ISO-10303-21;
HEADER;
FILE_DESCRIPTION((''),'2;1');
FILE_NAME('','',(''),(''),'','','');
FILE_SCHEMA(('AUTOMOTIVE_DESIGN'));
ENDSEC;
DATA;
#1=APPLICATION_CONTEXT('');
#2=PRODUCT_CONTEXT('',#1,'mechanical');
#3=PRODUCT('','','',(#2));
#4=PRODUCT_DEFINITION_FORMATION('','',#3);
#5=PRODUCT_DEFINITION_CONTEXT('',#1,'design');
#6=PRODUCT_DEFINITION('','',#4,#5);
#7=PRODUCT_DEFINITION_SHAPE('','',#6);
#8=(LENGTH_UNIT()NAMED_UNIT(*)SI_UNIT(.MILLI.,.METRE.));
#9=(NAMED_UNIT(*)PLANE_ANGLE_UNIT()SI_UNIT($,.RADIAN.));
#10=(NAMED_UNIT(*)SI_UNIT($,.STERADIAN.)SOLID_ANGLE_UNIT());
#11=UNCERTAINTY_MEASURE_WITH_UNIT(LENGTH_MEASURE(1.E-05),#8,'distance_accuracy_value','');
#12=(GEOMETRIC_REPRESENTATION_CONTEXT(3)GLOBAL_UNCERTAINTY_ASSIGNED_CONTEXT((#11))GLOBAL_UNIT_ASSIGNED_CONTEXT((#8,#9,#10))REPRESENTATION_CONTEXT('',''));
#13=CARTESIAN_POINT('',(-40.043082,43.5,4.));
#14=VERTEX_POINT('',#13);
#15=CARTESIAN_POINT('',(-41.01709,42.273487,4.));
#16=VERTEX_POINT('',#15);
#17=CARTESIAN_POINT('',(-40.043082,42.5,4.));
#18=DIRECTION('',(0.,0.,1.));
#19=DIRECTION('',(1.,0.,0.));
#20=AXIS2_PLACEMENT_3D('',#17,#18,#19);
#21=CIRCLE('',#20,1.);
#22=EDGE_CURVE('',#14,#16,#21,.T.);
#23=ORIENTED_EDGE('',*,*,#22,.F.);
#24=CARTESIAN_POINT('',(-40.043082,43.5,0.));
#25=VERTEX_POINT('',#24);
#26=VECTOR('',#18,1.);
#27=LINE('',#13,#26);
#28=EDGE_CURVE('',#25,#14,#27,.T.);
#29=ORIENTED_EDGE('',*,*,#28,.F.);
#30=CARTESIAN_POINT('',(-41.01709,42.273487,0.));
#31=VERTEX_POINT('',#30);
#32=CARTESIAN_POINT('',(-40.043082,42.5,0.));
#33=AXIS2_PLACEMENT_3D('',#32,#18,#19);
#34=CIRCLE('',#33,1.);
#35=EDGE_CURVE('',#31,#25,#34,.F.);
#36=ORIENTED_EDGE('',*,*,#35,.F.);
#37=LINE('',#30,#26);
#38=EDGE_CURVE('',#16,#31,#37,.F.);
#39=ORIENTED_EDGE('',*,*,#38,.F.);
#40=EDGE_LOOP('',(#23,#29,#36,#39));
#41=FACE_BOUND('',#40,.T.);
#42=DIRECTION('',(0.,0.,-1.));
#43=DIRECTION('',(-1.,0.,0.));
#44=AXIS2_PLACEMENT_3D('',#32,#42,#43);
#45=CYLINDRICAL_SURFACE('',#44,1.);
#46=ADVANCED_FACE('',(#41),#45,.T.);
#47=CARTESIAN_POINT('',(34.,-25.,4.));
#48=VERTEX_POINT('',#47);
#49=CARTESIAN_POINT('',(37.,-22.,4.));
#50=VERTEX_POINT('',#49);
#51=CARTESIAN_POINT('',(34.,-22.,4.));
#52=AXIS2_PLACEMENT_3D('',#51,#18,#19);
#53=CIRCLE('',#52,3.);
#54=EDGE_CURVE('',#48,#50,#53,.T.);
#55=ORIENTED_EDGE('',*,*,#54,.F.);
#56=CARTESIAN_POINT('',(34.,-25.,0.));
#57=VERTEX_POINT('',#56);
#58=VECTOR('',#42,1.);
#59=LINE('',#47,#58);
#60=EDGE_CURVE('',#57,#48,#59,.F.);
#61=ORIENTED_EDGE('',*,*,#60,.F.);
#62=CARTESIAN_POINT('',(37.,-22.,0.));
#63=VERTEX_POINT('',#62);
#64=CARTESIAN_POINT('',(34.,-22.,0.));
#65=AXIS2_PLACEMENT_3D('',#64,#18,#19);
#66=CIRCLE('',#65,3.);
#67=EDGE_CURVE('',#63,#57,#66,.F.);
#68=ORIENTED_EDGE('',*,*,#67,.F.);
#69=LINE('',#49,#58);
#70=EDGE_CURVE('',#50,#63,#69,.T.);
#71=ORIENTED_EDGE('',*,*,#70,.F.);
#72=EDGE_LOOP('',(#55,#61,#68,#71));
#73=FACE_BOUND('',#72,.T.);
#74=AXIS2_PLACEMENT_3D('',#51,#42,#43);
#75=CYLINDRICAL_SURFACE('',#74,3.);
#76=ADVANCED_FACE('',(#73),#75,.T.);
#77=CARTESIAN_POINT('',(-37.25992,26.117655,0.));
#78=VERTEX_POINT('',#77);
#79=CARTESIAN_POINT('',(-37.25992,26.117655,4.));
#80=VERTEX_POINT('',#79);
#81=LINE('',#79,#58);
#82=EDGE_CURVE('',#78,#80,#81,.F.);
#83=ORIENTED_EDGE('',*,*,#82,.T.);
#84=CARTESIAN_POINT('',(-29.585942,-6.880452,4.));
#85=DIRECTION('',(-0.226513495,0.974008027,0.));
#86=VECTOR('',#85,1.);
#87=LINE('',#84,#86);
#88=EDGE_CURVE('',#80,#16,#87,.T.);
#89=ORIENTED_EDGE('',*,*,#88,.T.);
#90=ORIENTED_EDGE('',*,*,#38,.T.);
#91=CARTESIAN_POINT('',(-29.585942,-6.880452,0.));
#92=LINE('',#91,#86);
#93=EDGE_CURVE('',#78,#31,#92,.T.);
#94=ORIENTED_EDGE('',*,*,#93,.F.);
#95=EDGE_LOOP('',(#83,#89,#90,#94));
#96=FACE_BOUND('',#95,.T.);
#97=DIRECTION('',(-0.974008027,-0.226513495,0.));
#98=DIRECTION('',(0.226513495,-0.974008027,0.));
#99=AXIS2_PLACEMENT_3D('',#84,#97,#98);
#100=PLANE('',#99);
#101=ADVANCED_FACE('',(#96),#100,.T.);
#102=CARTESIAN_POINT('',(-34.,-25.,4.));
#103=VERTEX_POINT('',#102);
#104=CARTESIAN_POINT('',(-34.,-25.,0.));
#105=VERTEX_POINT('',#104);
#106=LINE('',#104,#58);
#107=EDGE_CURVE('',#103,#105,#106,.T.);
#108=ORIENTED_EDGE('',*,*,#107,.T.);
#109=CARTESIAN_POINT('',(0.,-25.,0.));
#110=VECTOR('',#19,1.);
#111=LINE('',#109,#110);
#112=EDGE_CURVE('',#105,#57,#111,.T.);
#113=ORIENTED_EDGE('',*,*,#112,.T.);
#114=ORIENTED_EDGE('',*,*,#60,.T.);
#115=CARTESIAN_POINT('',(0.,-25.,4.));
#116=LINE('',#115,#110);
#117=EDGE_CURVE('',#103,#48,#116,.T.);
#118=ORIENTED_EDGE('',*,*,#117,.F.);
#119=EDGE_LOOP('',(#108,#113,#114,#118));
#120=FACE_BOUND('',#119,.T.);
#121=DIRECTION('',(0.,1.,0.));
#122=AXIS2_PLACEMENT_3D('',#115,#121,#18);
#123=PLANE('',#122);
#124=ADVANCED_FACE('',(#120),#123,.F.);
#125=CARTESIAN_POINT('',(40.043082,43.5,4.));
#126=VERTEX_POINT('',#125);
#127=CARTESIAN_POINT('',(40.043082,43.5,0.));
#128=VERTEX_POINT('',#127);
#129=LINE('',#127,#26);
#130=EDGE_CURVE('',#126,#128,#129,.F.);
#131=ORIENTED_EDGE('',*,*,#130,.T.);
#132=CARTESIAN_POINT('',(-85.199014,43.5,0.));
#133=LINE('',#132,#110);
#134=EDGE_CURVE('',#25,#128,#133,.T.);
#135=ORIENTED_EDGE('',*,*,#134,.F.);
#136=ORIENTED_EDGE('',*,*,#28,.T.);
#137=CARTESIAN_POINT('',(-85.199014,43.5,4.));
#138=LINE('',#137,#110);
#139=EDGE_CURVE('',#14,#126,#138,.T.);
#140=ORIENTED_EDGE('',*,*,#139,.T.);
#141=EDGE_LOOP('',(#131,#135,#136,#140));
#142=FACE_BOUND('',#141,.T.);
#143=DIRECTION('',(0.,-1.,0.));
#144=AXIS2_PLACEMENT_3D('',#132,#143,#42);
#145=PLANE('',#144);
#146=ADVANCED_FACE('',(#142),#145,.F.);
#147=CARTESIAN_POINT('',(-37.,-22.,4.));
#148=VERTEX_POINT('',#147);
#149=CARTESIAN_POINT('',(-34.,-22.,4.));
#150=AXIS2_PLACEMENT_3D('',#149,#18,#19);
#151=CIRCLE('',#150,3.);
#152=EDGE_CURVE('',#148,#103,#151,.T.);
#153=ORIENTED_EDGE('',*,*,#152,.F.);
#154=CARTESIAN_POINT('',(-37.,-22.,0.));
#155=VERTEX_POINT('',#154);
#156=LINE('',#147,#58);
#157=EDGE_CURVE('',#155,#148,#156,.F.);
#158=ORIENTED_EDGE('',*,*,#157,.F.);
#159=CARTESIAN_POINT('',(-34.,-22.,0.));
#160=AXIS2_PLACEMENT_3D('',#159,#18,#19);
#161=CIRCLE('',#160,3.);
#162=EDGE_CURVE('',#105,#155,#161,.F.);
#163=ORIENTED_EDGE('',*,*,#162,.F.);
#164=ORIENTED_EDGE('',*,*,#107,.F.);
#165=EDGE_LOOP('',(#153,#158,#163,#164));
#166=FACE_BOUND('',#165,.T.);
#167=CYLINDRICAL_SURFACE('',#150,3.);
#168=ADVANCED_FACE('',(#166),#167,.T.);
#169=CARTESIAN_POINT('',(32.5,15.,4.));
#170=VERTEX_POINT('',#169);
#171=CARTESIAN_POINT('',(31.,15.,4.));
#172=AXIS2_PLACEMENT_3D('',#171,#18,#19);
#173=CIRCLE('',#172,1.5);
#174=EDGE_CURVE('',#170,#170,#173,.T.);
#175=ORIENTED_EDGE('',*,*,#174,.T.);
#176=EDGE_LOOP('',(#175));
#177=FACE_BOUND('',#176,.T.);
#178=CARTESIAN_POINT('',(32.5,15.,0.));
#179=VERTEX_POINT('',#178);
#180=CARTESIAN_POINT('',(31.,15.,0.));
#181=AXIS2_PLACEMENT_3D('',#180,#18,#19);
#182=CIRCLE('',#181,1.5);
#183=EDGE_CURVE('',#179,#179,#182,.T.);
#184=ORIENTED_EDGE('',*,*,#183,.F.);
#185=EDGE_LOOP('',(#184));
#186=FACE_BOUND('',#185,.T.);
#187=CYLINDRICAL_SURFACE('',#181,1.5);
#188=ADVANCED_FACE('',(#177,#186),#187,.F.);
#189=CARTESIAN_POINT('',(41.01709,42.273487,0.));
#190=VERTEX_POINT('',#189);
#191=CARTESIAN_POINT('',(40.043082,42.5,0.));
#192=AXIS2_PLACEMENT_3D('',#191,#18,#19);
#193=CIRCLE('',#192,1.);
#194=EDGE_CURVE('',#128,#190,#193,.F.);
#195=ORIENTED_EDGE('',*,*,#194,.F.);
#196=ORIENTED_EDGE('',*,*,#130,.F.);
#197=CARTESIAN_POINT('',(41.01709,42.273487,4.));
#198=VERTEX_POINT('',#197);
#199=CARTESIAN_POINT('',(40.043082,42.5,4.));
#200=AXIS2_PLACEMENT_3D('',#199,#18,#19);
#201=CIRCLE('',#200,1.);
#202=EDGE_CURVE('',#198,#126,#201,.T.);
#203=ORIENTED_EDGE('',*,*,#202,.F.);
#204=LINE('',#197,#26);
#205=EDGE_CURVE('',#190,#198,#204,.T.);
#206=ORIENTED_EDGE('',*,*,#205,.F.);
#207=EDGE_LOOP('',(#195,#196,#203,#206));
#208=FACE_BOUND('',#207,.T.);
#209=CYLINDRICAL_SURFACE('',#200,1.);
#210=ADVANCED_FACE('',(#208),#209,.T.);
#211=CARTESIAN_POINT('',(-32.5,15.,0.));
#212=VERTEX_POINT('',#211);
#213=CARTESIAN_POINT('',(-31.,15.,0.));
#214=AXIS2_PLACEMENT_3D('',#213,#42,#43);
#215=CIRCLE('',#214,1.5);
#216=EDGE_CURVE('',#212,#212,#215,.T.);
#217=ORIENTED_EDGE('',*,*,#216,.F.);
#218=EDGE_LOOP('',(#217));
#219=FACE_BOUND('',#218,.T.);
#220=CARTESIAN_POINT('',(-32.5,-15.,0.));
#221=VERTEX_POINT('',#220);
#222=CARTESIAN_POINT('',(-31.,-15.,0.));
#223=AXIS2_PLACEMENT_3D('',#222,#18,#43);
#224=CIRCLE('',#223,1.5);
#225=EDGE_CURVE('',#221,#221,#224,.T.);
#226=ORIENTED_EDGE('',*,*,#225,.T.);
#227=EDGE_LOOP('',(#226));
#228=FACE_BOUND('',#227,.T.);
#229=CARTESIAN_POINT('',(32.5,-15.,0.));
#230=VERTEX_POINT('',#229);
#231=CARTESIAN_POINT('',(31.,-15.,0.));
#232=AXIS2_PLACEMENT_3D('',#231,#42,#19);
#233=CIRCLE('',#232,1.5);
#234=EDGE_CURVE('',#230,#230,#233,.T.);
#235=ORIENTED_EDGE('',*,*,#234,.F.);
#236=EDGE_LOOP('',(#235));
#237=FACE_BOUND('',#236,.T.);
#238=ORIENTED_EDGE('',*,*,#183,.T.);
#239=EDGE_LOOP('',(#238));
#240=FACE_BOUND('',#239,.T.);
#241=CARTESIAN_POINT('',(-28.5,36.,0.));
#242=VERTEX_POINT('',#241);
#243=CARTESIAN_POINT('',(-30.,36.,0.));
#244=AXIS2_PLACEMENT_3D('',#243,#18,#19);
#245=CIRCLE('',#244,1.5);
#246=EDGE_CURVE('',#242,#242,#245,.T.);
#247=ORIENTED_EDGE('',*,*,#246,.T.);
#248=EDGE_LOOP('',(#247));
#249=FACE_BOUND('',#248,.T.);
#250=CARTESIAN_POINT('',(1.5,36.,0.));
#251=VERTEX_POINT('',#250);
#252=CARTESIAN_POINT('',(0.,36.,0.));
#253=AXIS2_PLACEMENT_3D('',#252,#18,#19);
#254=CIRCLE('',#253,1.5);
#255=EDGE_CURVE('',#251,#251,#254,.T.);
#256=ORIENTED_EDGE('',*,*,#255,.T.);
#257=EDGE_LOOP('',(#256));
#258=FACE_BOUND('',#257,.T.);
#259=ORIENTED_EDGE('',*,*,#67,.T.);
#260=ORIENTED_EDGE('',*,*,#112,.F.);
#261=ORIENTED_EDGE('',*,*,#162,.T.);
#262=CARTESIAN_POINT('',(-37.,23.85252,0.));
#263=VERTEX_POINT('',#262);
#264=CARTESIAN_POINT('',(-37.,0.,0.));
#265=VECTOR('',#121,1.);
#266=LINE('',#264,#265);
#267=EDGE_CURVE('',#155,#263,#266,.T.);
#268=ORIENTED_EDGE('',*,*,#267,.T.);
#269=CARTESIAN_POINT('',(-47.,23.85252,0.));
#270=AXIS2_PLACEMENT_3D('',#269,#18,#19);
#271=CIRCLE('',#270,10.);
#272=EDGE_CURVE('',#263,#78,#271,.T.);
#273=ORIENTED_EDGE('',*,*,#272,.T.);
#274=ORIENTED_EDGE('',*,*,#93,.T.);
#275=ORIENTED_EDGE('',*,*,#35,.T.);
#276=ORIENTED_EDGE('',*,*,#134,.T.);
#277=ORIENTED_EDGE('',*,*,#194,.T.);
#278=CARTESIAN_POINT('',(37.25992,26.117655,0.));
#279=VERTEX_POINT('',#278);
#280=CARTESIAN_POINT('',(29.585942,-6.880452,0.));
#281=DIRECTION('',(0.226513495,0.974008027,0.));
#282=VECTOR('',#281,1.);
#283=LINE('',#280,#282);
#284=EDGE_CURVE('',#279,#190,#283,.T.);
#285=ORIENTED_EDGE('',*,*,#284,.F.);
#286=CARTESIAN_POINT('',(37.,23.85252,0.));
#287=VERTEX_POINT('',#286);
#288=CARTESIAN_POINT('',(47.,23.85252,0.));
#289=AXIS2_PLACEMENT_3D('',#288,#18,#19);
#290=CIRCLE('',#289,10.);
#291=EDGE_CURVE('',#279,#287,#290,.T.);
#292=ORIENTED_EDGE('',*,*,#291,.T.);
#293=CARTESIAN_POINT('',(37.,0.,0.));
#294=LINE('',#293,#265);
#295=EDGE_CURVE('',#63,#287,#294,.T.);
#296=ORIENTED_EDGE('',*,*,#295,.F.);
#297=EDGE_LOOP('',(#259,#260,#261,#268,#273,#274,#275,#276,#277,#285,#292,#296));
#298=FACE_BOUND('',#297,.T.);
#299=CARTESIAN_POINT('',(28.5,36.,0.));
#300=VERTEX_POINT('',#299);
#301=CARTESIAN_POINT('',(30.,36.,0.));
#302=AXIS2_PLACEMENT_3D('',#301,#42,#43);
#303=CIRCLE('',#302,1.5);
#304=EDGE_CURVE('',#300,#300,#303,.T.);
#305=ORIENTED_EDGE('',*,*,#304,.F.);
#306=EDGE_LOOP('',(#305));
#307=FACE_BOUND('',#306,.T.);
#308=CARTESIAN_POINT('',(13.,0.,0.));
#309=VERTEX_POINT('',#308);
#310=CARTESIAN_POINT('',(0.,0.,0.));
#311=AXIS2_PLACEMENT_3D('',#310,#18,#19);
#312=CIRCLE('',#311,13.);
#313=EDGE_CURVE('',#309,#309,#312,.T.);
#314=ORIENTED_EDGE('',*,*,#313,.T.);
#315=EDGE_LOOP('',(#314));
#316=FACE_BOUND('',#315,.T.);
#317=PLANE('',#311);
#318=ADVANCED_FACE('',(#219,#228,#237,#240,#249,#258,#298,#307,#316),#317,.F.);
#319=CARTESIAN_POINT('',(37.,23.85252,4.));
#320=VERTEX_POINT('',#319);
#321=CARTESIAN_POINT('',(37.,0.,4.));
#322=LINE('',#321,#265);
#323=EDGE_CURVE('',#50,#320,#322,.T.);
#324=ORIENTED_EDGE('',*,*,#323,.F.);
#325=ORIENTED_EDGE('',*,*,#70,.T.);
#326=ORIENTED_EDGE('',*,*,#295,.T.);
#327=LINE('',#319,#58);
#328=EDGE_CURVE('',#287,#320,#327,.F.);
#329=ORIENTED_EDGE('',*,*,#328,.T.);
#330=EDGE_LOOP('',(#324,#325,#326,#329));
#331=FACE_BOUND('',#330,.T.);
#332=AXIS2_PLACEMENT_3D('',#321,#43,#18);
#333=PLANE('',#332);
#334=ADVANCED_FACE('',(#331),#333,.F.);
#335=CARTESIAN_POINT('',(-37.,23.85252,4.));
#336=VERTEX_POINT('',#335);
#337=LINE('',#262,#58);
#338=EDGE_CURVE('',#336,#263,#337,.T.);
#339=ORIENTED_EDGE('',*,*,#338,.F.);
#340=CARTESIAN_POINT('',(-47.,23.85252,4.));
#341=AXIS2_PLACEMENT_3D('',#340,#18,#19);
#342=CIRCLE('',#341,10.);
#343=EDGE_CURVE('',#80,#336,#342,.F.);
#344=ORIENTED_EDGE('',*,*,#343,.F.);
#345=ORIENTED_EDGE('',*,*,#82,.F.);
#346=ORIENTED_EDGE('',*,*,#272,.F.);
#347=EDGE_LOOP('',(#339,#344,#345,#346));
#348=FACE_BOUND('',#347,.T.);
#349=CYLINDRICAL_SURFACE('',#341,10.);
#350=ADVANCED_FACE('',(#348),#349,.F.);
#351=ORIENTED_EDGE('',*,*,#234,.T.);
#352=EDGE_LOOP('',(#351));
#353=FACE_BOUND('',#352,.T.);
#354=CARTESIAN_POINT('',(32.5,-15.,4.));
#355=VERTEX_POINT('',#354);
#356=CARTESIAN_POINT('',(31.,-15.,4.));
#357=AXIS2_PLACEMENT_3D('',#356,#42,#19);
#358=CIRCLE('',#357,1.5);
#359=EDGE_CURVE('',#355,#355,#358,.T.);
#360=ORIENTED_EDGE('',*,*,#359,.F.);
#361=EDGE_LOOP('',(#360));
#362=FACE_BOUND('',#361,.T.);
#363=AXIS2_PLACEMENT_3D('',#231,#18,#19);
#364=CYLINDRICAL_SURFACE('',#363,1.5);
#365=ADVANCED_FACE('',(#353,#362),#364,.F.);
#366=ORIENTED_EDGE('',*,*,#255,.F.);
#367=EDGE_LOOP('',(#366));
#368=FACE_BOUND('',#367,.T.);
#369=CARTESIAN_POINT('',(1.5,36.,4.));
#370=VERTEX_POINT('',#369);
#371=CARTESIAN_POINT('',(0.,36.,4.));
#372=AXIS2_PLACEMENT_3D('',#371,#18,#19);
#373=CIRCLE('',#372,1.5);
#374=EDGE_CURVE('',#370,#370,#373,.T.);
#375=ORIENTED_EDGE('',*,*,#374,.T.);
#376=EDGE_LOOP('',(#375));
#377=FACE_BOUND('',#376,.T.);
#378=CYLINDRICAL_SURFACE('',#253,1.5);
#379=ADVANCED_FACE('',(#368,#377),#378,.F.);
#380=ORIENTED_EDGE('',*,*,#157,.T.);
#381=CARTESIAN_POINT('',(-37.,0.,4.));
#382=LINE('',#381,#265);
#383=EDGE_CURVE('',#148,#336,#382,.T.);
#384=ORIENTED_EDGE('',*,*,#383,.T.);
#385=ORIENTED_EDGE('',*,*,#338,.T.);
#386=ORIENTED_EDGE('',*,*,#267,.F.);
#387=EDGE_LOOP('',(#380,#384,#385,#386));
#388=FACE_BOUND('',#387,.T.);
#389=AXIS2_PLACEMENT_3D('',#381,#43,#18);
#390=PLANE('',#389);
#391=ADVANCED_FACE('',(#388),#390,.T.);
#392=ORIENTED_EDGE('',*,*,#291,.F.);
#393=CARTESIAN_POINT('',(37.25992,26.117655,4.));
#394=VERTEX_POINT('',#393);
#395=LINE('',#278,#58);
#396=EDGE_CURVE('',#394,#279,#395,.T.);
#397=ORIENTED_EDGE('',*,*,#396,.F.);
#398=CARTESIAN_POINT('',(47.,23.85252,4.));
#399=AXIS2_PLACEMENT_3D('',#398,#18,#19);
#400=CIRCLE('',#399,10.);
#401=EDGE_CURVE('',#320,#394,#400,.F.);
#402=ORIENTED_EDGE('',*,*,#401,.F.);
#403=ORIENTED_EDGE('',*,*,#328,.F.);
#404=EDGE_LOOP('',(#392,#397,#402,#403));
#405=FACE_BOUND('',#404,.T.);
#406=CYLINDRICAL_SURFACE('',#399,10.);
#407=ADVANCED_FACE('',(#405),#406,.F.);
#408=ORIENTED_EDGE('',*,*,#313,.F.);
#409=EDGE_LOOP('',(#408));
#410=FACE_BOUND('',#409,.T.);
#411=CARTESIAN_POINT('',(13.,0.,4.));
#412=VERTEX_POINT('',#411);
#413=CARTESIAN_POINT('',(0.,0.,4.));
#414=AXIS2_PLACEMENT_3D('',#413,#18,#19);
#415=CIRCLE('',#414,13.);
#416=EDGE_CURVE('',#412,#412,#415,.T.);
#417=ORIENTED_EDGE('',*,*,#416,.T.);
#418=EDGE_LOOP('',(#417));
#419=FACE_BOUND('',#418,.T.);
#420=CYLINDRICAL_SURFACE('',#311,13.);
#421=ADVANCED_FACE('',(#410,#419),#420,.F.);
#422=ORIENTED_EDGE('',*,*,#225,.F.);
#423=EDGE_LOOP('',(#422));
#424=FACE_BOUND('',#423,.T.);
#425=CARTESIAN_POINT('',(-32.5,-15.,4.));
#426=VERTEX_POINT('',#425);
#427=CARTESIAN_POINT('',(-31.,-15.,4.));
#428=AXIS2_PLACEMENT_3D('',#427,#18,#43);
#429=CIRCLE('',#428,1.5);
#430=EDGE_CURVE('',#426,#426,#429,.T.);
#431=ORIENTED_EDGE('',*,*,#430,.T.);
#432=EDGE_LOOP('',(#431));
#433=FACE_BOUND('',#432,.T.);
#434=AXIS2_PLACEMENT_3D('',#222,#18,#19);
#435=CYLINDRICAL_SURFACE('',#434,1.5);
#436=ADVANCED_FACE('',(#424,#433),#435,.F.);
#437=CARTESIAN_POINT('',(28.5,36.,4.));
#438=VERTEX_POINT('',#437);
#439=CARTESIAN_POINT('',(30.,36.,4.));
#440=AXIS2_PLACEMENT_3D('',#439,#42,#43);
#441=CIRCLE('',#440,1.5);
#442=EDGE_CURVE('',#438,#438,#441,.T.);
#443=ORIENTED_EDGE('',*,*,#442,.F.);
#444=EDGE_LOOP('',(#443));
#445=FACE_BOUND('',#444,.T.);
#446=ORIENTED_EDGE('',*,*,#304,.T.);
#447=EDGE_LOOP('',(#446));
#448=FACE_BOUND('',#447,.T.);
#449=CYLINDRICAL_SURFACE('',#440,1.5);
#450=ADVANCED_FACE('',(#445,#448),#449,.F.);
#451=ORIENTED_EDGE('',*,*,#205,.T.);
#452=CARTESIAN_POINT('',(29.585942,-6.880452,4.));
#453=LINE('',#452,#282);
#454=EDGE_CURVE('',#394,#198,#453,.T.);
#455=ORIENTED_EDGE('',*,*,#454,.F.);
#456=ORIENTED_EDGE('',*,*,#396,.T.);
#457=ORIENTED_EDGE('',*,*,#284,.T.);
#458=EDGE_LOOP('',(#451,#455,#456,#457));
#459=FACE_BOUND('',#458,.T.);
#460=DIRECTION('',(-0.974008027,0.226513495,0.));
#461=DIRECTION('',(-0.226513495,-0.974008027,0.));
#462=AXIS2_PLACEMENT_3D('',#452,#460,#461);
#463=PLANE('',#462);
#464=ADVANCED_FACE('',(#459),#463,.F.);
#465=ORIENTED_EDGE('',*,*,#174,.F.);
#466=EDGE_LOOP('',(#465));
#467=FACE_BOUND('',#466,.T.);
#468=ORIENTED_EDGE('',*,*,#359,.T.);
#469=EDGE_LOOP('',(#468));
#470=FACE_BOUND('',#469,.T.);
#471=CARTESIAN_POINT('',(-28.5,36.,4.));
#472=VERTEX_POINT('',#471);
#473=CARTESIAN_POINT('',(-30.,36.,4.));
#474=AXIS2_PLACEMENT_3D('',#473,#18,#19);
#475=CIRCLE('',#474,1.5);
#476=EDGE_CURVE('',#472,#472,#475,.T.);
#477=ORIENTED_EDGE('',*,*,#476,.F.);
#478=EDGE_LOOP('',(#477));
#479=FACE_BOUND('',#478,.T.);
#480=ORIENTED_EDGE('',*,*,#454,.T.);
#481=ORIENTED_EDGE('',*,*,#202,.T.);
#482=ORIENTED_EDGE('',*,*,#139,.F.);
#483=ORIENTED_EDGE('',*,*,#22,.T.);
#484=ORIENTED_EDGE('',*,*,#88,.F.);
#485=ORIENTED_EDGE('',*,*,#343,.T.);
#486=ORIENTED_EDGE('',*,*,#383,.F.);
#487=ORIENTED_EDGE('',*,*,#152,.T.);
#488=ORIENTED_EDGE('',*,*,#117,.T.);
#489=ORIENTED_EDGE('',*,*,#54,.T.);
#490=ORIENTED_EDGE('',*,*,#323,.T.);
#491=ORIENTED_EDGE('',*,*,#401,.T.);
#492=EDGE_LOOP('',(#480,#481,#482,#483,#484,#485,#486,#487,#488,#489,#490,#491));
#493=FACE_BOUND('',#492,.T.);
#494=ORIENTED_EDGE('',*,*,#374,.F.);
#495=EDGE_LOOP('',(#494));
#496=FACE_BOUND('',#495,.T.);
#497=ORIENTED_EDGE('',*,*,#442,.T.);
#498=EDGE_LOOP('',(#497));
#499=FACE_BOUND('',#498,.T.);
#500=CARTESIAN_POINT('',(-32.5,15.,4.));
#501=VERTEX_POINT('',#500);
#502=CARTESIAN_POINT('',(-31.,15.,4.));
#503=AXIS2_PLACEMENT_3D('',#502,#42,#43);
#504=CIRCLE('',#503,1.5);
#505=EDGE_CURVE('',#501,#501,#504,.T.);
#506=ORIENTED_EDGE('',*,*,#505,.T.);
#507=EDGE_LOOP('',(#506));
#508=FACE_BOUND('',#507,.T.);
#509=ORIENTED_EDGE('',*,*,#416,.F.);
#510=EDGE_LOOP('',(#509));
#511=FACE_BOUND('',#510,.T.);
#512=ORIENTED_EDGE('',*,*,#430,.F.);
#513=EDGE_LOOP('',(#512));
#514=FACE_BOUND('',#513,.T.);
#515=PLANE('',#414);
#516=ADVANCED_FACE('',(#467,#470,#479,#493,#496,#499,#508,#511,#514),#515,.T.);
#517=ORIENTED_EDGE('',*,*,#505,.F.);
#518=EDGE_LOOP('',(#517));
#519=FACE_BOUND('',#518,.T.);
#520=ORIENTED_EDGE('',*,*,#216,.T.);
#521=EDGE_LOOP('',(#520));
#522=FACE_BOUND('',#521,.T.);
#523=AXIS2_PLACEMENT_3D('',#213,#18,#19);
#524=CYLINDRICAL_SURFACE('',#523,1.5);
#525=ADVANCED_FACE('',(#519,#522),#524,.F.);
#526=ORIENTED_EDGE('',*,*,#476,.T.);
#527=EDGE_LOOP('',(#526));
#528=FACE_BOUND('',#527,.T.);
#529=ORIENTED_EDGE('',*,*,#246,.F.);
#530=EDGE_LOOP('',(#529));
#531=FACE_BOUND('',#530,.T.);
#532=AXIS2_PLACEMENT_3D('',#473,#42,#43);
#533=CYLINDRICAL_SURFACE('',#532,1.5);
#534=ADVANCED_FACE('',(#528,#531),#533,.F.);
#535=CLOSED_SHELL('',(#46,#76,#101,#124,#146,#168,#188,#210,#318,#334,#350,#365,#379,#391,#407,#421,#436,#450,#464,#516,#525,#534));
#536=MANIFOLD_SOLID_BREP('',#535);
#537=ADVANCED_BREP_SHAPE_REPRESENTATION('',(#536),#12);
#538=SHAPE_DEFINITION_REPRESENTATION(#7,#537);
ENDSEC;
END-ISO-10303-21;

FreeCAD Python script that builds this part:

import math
import FreeCAD as App
import Part
import Sketcher


def edges_at(feature, points):
    """Names of the edges that pass closest to the given points."""
    edges = feature.Shape.Edges
    near = lambda p: min(range(len(edges)), key=lambda i: edges[i].distToShape(Part.Vertex(*p))[0])
    return sorted({f"Edge{near(p) + 1}" for p in points})

doc = App.newDocument("Part")
params = doc.addObject("Spreadsheet::Sheet", "Params")
for row, (alias, value) in enumerate([
    ("sketch1_width", "84 mm"),
    ("sketch1_width2", "74 mm"),
    ("sketch1_height", "50 mm"),
    ("pad1_length", "4 mm"),
    ("sketch2_radius", "1.5 mm"),
    ("sketch3_radius", "1.5 mm"),
    ("sketch4_diameter", "26 mm"),
    ("fillet_radius", "10 mm"),
    ("sketch5_width", "84 mm"),
    ("sketch5_height", "62 mm"),
    ("pad2_length", "4 mm"),
    ("sketch6_width", "18 mm"),
    ("sketch6_height", "44 mm"),
    ("pad3_length", "4 mm"),
    ("sketch7_width", "64 mm"),
    ("sketch7_height", "22 mm"),
    ("sketch8_diameter", "3 mm"),
    ("sketch9_diameter", "3 mm"),
    ("sketch10_diameter", "3 mm"),
    ("fillet2_radius", "3 mm"),
    ("sketch11_width", "20 mm"),
    ("sketch11_height", "18 mm"),
    ("fillet3_radius", "3 mm"),
    ("fillet4_radius", "3 mm"),
    ("fillet5_radius", "3 mm"),
    ("sketch13_diameter", "3 mm"),
    ("fillet6_radius", "1 mm"),
], start=1):
    params.set(f"A{row}", alias)
    params.set(f"B{row}", "=" + value)
    params.setAlias(f"B{row}", alias)

body = doc.addObject("PartDesign::Body", "Body")

# Sketch on XY plane
sketch1 = body.newObject("Sketcher::SketchObject", "Sketch")
sketch1.AttachmentSupport = (doc.getObject("XY_Plane"), [""])
sketch1.MapMode = "FlatFace"
sketch1.addGeometry(Part.LineSegment(App.Vector(37, 25, 0), App.Vector(42, 46.5, 0)), False)
sketch1.addGeometry(Part.LineSegment(App.Vector(42, 46.5, 0), App.Vector(-42, 46.5, 0)), False)
sketch1.addGeometry(Part.LineSegment(App.Vector(-42, 46.5, 0), App.Vector(-37, 25, 0)), False)
sketch1.addGeometry(Part.LineSegment(App.Vector(-37, 25, 0), App.Vector(-37, -25, 0)), False)
sketch1.addGeometry(Part.LineSegment(App.Vector(-37, -25, 0), App.Vector(37, -25, 0)), False)
sketch1.addGeometry(Part.LineSegment(App.Vector(37, -25, 0), App.Vector(37, 25, 0)), False)
sketch1.addConstraint(Sketcher.Constraint("Coincident", 0, 2, 1, 1))
sketch1.addConstraint(Sketcher.Constraint("Coincident", 1, 2, 2, 1))
sketch1.addConstraint(Sketcher.Constraint("Coincident", 2, 2, 3, 1))
sketch1.addConstraint(Sketcher.Constraint("Coincident", 3, 2, 4, 1))
sketch1.addConstraint(Sketcher.Constraint("Coincident", 4, 2, 5, 1))
sketch1.addConstraint(Sketcher.Constraint("Coincident", 5, 2, 0, 1))
sketch1.addConstraint(Sketcher.Constraint("Horizontal", 1))
sketch1.addConstraint(Sketcher.Constraint("Vertical", 3))
sketch1.addConstraint(Sketcher.Constraint("Horizontal", 4))
sketch1.addConstraint(Sketcher.Constraint("Vertical", 5))
sketch1.addConstraint(Sketcher.Constraint("Symmetric", 2, 2, 4, 2, -1, 1))
sketch1.addConstraint(Sketcher.Constraint("Horizontal", 2, 2, 5, 2))
sketch1.addConstraint(Sketcher.Constraint("Equal", 0, 2))
sketch1.addConstraint(Sketcher.Constraint("DistanceX", 1, 2, 1, 1, 84.0))
sketch1.addConstraint(Sketcher.Constraint("DistanceX", 4, 1, 4, 2, 74.0))
sketch1.addConstraint(Sketcher.Constraint("DistanceY", 3, 2, 3, 1, 50.0))
sketch1.addConstraint(Sketcher.Constraint("DistanceY", -1, 1, 0, 2, 46.5))
sketch1.setExpression("Constraints[13]", "Params.sketch1_width")
sketch1.setExpression("Constraints[14]", "Params.sketch1_width2")
sketch1.setExpression("Constraints[15]", "Params.sketch1_height")
pad1 = body.newObject("PartDesign::Pad", "Pad")
pad1.Profile = sketch1
pad1.setExpression("Length", "Params.pad1_length")

# Sketch on XY plane
sketch2 = body.newObject("Sketcher::SketchObject", "Sketch001")
sketch2.AttachmentSupport = (doc.getObject("XY_Plane"), [""])
sketch2.MapMode = "FlatFace"
sketch2.AttachmentOffset = App.Placement(App.Vector(0, 0, 4), App.Rotation())
sketch2.addGeometry(Part.ArcOfCircle(Part.Circle(App.Vector(31, 15, 0), App.Vector(0, 0, 1), 1.5), math.radians(180), math.radians(270)), False)
sketch2.addGeometry(Part.ArcOfCircle(Part.Circle(App.Vector(31, 15, 0), App.Vector(0, 0, 1), 1.5), math.radians(-90), math.radians(0)), False)
sketch2.addGeometry(Part.ArcOfCircle(Part.Circle(App.Vector(31, 15, 0), App.Vector(0, 0, 1), 1.5), math.radians(0), math.radians(180)), False)
sketch2.addConstraint(Sketcher.Constraint("Tangent", 0, 2, 1, 1))
sketch2.addConstraint(Sketcher.Constraint("Tangent", 1, 2, 2, 1))
sketch2.addConstraint(Sketcher.Constraint("Tangent", 2, 2, 0, 1))
sketch2.addConstraint(Sketcher.Constraint("Horizontal", 2, 3, 1, 2))
sketch2.addConstraint(Sketcher.Constraint("Horizontal", 1, 2, 2, 2))
sketch2.addConstraint(Sketcher.Constraint("Vertical", 2, 3, 0, 2))
sketch2.addConstraint(Sketcher.Constraint("Radius", 0, 1.5))
sketch2.addConstraint(Sketcher.Constraint("DistanceX", -1, 1, 0, 3, 31.0))
sketch2.addConstraint(Sketcher.Constraint("DistanceY", -1, 1, 0, 3, 15.0))
sketch2.setExpression("Constraints[6]", "Params.sketch2_radius")
pocket1 = body.newObject("PartDesign::Pocket", "Pocket")
pocket1.Profile = sketch2
pocket1.Type = "ThroughAll"
doc.recompute()

mirrored = body.newObject("PartDesign::Mirrored", "Mirrored")
mirrored.Originals = [pocket1]
mirrored.MirrorPlane = (doc.getObject("XZ_Plane"), [""])
body.Tip = mirrored
doc.recompute()

mirrored2 = body.newObject("PartDesign::Mirrored", "Mirrored001")
mirrored2.Originals = [pocket1]
mirrored2.MirrorPlane = (doc.getObject("YZ_Plane"), [""])
body.Tip = mirrored2

# Sketch on XY plane
sketch3 = body.newObject("Sketcher::SketchObject", "Sketch002")
sketch3.AttachmentSupport = (doc.getObject("XY_Plane"), [""])
sketch3.MapMode = "FlatFace"
sketch3.AttachmentOffset = App.Placement(App.Vector(0, 0, 4), App.Rotation())
sketch3.addGeometry(Part.ArcOfCircle(Part.Circle(App.Vector(-31, -15, 0), App.Vector(0, 0, 1), 1.5), math.radians(0), math.radians(90)), False)
sketch3.addGeometry(Part.ArcOfCircle(Part.Circle(App.Vector(-31, -15, 0), App.Vector(0, 0, 1), 1.5), math.radians(90), math.radians(180)), False)
sketch3.addGeometry(Part.ArcOfCircle(Part.Circle(App.Vector(-31, -15, 0), App.Vector(0, 0, 1), 1.5), math.radians(180), math.radians(360)), False)
sketch3.addConstraint(Sketcher.Constraint("Tangent", 0, 2, 1, 1))
sketch3.addConstraint(Sketcher.Constraint("Tangent", 1, 2, 2, 1))
sketch3.addConstraint(Sketcher.Constraint("Tangent", 2, 2, 0, 1))
sketch3.addConstraint(Sketcher.Constraint("Horizontal", 2, 3, 1, 2))
sketch3.addConstraint(Sketcher.Constraint("Horizontal", 1, 2, 2, 2))
sketch3.addConstraint(Sketcher.Constraint("Vertical", 2, 3, 0, 2))
sketch3.addConstraint(Sketcher.Constraint("Radius", 0, 1.5))
sketch3.addConstraint(Sketcher.Constraint("DistanceX", 0, 3, -1, 1, 31.0))
sketch3.addConstraint(Sketcher.Constraint("DistanceY", 0, 3, -1, 1, 15.0))
sketch3.setExpression("Constraints[6]", "Params.sketch3_radius")
pocket2 = body.newObject("PartDesign::Pocket", "Pocket001")
pocket2.Profile = sketch3
pocket2.Type = "ThroughAll"

# Sketch on XY plane
sketch4 = body.newObject("Sketcher::SketchObject", "Sketch003")
sketch4.AttachmentSupport = (doc.getObject("XY_Plane"), [""])
sketch4.MapMode = "FlatFace"
sketch4.AttachmentOffset = App.Placement(App.Vector(0, 0, 4), App.Rotation())
sketch4.addGeometry(Part.Circle(App.Vector(0, 0, 0), App.Vector(0, 0, 1), 13), False)
sketch4.addConstraint(Sketcher.Constraint("Coincident", 0, 3, -1, 1))
sketch4.addConstraint(Sketcher.Constraint("Diameter", 0, 26.0))
sketch4.setExpression("Constraints[1]", "Params.sketch4_diameter")
pocket3 = body.newObject("PartDesign::Pocket", "Pocket002")
pocket3.Profile = sketch4
pocket3.Type = "ThroughAll"
doc.recompute()

fillet = body.newObject("PartDesign::Fillet", "Fillet")
fillet.Base = (pocket3, edges_at(pocket3, [(37, 25, 2), (-37, 25, 2)]))
fillet.setExpression("Radius", "Params.fillet_radius")

# Sketch on XY plane
sketch5 = body.newObject("Sketcher::SketchObject", "Sketch004")
sketch5.AttachmentSupport = (doc.getObject("XY_Plane"), [""])
sketch5.MapMode = "FlatFace"
sketch5.AttachmentOffset = App.Placement(App.Vector(0, 0, 4), App.Rotation())
sketch5.addGeometry(Part.LineSegment(App.Vector(-42, 108.5, 0), App.Vector(-42, 46.5, 0)), False)
sketch5.addGeometry(Part.LineSegment(App.Vector(-42, 46.5, 0), App.Vector(42, 46.5, 0)), False)
sketch5.addGeometry(Part.LineSegment(App.Vector(42, 46.5, 0), App.Vector(42, 108.5, 0)), False)
sketch5.addGeometry(Part.LineSegment(App.Vector(42, 108.5, 0), App.Vector(-42, 108.5, 0)), False)
sketch5.addConstraint(Sketcher.Constraint("Coincident", 0, 2, 1, 1))
sketch5.addConstraint(Sketcher.Constraint("Coincident", 1, 2, 2, 1))
sketch5.addConstraint(Sketcher.Constraint("Coincident", 2, 2, 3, 1))
sketch5.addConstraint(Sketcher.Constraint("Coincident", 3, 2, 0, 1))
sketch5.addConstraint(Sketcher.Constraint("Vertical", 0))
sketch5.addConstraint(Sketcher.Constraint("Horizontal", 1))
sketch5.addConstraint(Sketcher.Constraint("Vertical", 2))
sketch5.addConstraint(Sketcher.Constraint("Horizontal", 3))
sketch5.addConstraint(Sketcher.Constraint("DistanceX", 1, 1, 1, 2, 84.0))
sketch5.addConstraint(Sketcher.Constraint("DistanceY", 0, 2, 0, 1, 62.0))
sketch5.addConstraint(Sketcher.Constraint("DistanceX", 0, 2, -1, 1, 42.0))
sketch5.addConstraint(Sketcher.Constraint("DistanceY", -1, 1, 0, 2, 46.5))
sketch5.setExpression("Constraints[8]", "Params.sketch5_width")
sketch5.setExpression("Constraints[9]", "Params.sketch5_height")
pad2 = body.newObject("PartDesign::Pad", "Pad001")
pad2.Profile = sketch5
pad2.setExpression("Length", "Params.pad2_length")
pad2.Reversed = True

# Sketch on XY plane
sketch6 = body.newObject("Sketcher::SketchObject", "Sketch005")
sketch6.AttachmentSupport = (doc.getObject("XY_Plane"), [""])
sketch6.MapMode = "FlatFace"
sketch6.AttachmentOffset = App.Placement(App.Vector(0, 0, 4), App.Rotation())
sketch6.addGeometry(Part.LineSegment(App.Vector(-60, 90.5, 0), App.Vector(-60, 46.5, 0)), False)
sketch6.addGeometry(Part.LineSegment(App.Vector(-60, 46.5, 0), App.Vector(-42, 46.5, 0)), False)
sketch6.addGeometry(Part.LineSegment(App.Vector(-42, 46.5, 0), App.Vector(-42, 90.5, 0)), False)
sketch6.addGeometry(Part.LineSegment(App.Vector(-42, 90.5, 0), App.Vector(-60, 90.5, 0)), False)
sketch6.addConstraint(Sketcher.Constraint("Coincident", 0, 2, 1, 1))
sketch6.addConstraint(Sketcher.Constraint("Coincident", 1, 2, 2, 1))
sketch6.addConstraint(Sketcher.Constraint("Coincident", 2, 2, 3, 1))
sketch6.addConstraint(Sketcher.Constraint("Coincident", 3, 2, 0, 1))
sketch6.addConstraint(Sketcher.Constraint("Vertical", 0))
sketch6.addConstraint(Sketcher.Constraint("Horizontal", 1))
sketch6.addConstraint(Sketcher.Constraint("Vertical", 2))
sketch6.addConstraint(Sketcher.Constraint("Horizontal", 3))
sketch6.addConstraint(Sketcher.Constraint("DistanceX", 1, 1, 1, 2, 18.0))
sketch6.addConstraint(Sketcher.Constraint("DistanceY", 0, 2, 0, 1, 44.0))
sketch6.addConstraint(Sketcher.Constraint("DistanceX", 0, 2, -1, 1, 60.0))
sketch6.addConstraint(Sketcher.Constraint("DistanceY", -1, 1, 0, 2, 46.5))
sketch6.setExpression("Constraints[8]", "Params.sketch6_width")
sketch6.setExpression("Constraints[9]", "Params.sketch6_height")
pad3 = body.newObject("PartDesign::Pad", "Pad002")
pad3.Profile = sketch6
pad3.setExpression("Length", "Params.pad3_length")
pad3.Reversed = True
doc.recompute()

mirrored3 = body.newObject("PartDesign::Mirrored", "Mirrored002")
mirrored3.Originals = [pad3]
mirrored3.MirrorPlane = (doc.getObject("YZ_Plane"), [""])
body.Tip = mirrored3

# Sketch on XY plane
sketch7 = body.newObject("Sketcher::SketchObject", "Sketch006")
sketch7.AttachmentSupport = (doc.getObject("XY_Plane"), [""])
sketch7.MapMode = "FlatFace"
sketch7.AttachmentOffset = App.Placement(App.Vector(0, 0, 4), App.Rotation())
sketch7.addGeometry(Part.LineSegment(App.Vector(-32, 80.5, 0), App.Vector(-32, 58.5, 0)), False)
sketch7.addGeometry(Part.LineSegment(App.Vector(-32, 58.5, 0), App.Vector(32, 58.5, 0)), False)
sketch7.addGeometry(Part.LineSegment(App.Vector(32, 58.5, 0), App.Vector(32, 80.5, 0)), False)
sketch7.addGeometry(Part.LineSegment(App.Vector(32, 80.5, 0), App.Vector(-32, 80.5, 0)), False)
sketch7.addConstraint(Sketcher.Constraint("Coincident", 0, 2, 1, 1))
sketch7.addConstraint(Sketcher.Constraint("Coincident", 1, 2, 2, 1))
sketch7.addConstraint(Sketcher.Constraint("Coincident", 2, 2, 3, 1))
sketch7.addConstraint(Sketcher.Constraint("Coincident", 3, 2, 0, 1))
sketch7.addConstraint(Sketcher.Constraint("Vertical", 0))
sketch7.addConstraint(Sketcher.Constraint("Horizontal", 1))
sketch7.addConstraint(Sketcher.Constraint("Vertical", 2))
sketch7.addConstraint(Sketcher.Constraint("Horizontal", 3))
sketch7.addConstraint(Sketcher.Constraint("DistanceX", 1, 1, 1, 2, 64.0))
sketch7.addConstraint(Sketcher.Constraint("DistanceY", 0, 2, 0, 1, 22.0))
sketch7.addConstraint(Sketcher.Constraint("DistanceX", 0, 2, -1, 1, 32.0))
sketch7.addConstraint(Sketcher.Constraint("DistanceY", -1, 1, 0, 2, 58.5))
sketch7.setExpression("Constraints[8]", "Params.sketch7_width")
sketch7.setExpression("Constraints[9]", "Params.sketch7_height")
pocket4 = body.newObject("PartDesign::Pocket", "Pocket003")
pocket4.Profile = sketch7
pocket4.Type = "ThroughAll"

# Sketch on XY plane
sketch8 = body.newObject("Sketcher::SketchObject", "Sketch007")
sketch8.AttachmentSupport = (doc.getObject("XY_Plane"), [""])
sketch8.MapMode = "FlatFace"
sketch8.AttachmentOffset = App.Placement(App.Vector(0, 0, 4), App.Rotation())
sketch8.addGeometry(Part.Circle(App.Vector(0, 101, 0), App.Vector(0, 0, 1), 1.5), False)
sketch8.addGeometry(Part.Circle(App.Vector(-24, 101, 0), App.Vector(0, 0, 1), 1.5), False)
sketch8.addConstraint(Sketcher.Constraint("Equal", 0, 1))
sketch8.addConstraint(Sketcher.Constraint("PointOnObject", 0, 3, -2))
sketch8.addConstraint(Sketcher.Constraint("Horizontal", 0, 3, 1, 3))
sketch8.addConstraint(Sketcher.Constraint("Diameter", 0, 3.0))
sketch8.addConstraint(Sketcher.Constraint("DistanceY", -1, 1, 0, 3, 101.0))
sketch8.addConstraint(Sketcher.Constraint("DistanceX", 1, 3, -1, 1, 24.0))
sketch8.setExpression("Constraints[3]", "Params.sketch8_diameter")
pocket5 = body.newObject("PartDesign::Pocket", "Pocket004")
pocket5.Profile = sketch8
pocket5.Type = "ThroughAll"
doc.recompute()

mirrored4 = body.newObject("PartDesign::Mirrored", "Mirrored003")
mirrored4.Originals = [pocket5]
mirrored4.MirrorPlane = (doc.getObject("YZ_Plane"), [""])
body.Tip = mirrored4

# Sketch on XY plane
sketch9 = body.newObject("Sketcher::SketchObject", "Sketch008")
sketch9.AttachmentSupport = (doc.getObject("XY_Plane"), [""])
sketch9.MapMode = "FlatFace"
sketch9.addGeometry(Part.Circle(App.Vector(52.5, 83.5, 0), App.Vector(0, 0, 1), 1.5), False)
sketch9.addGeometry(Part.Circle(App.Vector(52.5, 61, 0), App.Vector(0, 0, 1), 1.5), False)
sketch9.addConstraint(Sketcher.Constraint("Equal", 0, 1))
sketch9.addConstraint(Sketcher.Constraint("Vertical", 0, 3, 1, 3))
sketch9.addConstraint(Sketcher.Constraint("Diameter", 0, 3.0))
sketch9.addConstraint(Sketcher.Constraint("DistanceY", -1, 1, 1, 3, 61.0))
sketch9.addConstraint(Sketcher.Constraint("DistanceX", -1, 1, 0, 3, 52.5))
sketch9.addConstraint(Sketcher.Constraint("DistanceY", -1, 1, 0, 3, 83.5))
sketch9.setExpression("Constraints[2]", "Params.sketch9_diameter")
pocket6 = body.newObject("PartDesign::Pocket", "Pocket005")
pocket6.Profile = sketch9
pocket6.Type = "ThroughAll"
pocket6.Reversed = True
doc.recompute()

mirrored5 = body.newObject("PartDesign::Mirrored", "Mirrored004")
mirrored5.Originals = [pocket6]
mirrored5.MirrorPlane = (doc.getObject("YZ_Plane"), [""])
body.Tip = mirrored5

# Sketch on XY plane
sketch10 = body.newObject("Sketcher::SketchObject", "Sketch009")
sketch10.AttachmentSupport = (doc.getObject("XY_Plane"), [""])
sketch10.MapMode = "FlatFace"
sketch10.addGeometry(Part.Circle(App.Vector(30, 36, 0), App.Vector(0, 0, 1), 1.5), False)
sketch10.addConstraint(Sketcher.Constraint("Diameter", 0, 3.0))
sketch10.addConstraint(Sketcher.Constraint("DistanceX", -1, 1, 0, 3, 30.0))
sketch10.addConstraint(Sketcher.Constraint("DistanceY", -1, 1, 0, 3, 36.0))
sketch10.setExpression("Constraints[0]", "Params.sketch10_diameter")
pocket7 = body.newObject("PartDesign::Pocket", "Pocket006")
pocket7.Profile = sketch10
pocket7.Type = "ThroughAll"
pocket7.Reversed = True
doc.recompute()

mirrored6 = body.newObject("PartDesign::Mirrored", "Mirrored005")
mirrored6.Originals = [pocket7]
mirrored6.MirrorPlane = (doc.getObject("YZ_Plane"), [""])
body.Tip = mirrored6
doc.recompute()

fillet2 = body.newObject("PartDesign::Fillet", "Fillet001")
fillet2.Base = (mirrored6, edges_at(mirrored6, [
    (32, 80.5, 2),
    (32, 58.5, 2),
    (-32, 58.5, 2),
    (-32, 80.5, 2),
    (-42, 46.5, 2),
    (42, 46.5, 2),
    (-42, 90.5, 2),
    (42, 90.5, 2),
]))
fillet2.setExpression("Radius", "Params.fillet2_radius")

# Sketch on XY plane
sketch11 = body.newObject("Sketcher::SketchObject", "Sketch010")
sketch11.AttachmentSupport = (doc.getObject("XY_Plane"), [""])
sketch11.MapMode = "FlatFace"
sketch11.addGeometry(Part.LineSegment(App.Vector(60, 108.5, 0), App.Vector(60, 90.5, 0)), False)
sketch11.addGeometry(Part.LineSegment(App.Vector(60, 90.5, 0), App.Vector(40, 90.5, 0)), False)
sketch11.addGeometry(Part.LineSegment(App.Vector(40, 90.5, 0), App.Vector(40, 108.5, 0)), False)
sketch11.addGeometry(Part.LineSegment(App.Vector(40, 108.5, 0), App.Vector(60, 108.5, 0)), False)
sketch11.addConstraint(Sketcher.Constraint("Coincident", 0, 2, 1, 1))
sketch11.addConstraint(Sketcher.Constraint("Coincident", 1, 2, 2, 1))
sketch11.addConstraint(Sketcher.Constraint("Coincident", 2, 2, 3, 1))
sketch11.addConstraint(Sketcher.Constraint("Coincident", 3, 2, 0, 1))
sketch11.addConstraint(Sketcher.Constraint("Vertical", 0))
sketch11.addConstraint(Sketcher.Constraint("Horizontal", 1))
sketch11.addConstraint(Sketcher.Constraint("Vertical", 2))
sketch11.addConstraint(Sketcher.Constraint("Horizontal", 3))
sketch11.addConstraint(Sketcher.Constraint("DistanceX", 1, 2, 1, 1, 20.0))
sketch11.addConstraint(Sketcher.Constraint("DistanceY", 0, 2, 0, 1, 18.0))
sketch11.addConstraint(Sketcher.Constraint("DistanceX", -1, 1, 0, 2, 60.0))
sketch11.addConstraint(Sketcher.Constraint("DistanceY", -1, 1, 0, 2, 90.5))
sketch11.setExpression("Constraints[8]", "Params.sketch11_width")
sketch11.setExpression("Constraints[9]", "Params.sketch11_height")
pocket8 = body.newObject("PartDesign::Pocket", "Pocket007")
pocket8.Profile = sketch11
pocket8.Type = "ThroughAll"
pocket8.Reversed = True
doc.recompute()

mirrored7 = body.newObject("PartDesign::Mirrored", "Mirrored006")
mirrored7.Originals = [pocket8]
mirrored7.MirrorPlane = (doc.getObject("YZ_Plane"), [""])
body.Tip = mirrored7
doc.recompute()

fillet3 = body.newObject("PartDesign::Fillet", "Fillet002")
fillet3.Base = (mirrored7, edges_at(mirrored7, [(40, 90.5, 2), (-40, 90.5, 2)]))
fillet3.setExpression("Radius", "Params.fillet3_radius")

# Sketch on XY plane
sketch12 = body.newObject("Sketcher::SketchObject", "Sketch011")
sketch12.AttachmentSupport = (doc.getObject("XY_Plane"), [""])
sketch12.MapMode = "FlatFace"
sketch12.addGeometry(Part.LineSegment(App.Vector(60, 130.045901, 0), App.Vector(60, 68.5, 0)), False)
sketch12.addGeometry(Part.LineSegment(App.Vector(60, 68.5, 0), App.Vector(-62.856865, 68.5, 0)), False)
sketch12.addGeometry(Part.LineSegment(App.Vector(-62.856865, 68.5, 0), App.Vector(-62.856865, 130.045901, 0)), False)
sketch12.addGeometry(Part.LineSegment(App.Vector(-62.856865, 130.045901, 0), App.Vector(60, 130.045901, 0)), False)
sketch12.addConstraint(Sketcher.Constraint("Coincident", 0, 2, 1, 1))
sketch12.addConstraint(Sketcher.Constraint("Coincident", 1, 2, 2, 1))
sketch12.addConstraint(Sketcher.Constraint("Coincident", 2, 2, 3, 1))
sketch12.addConstraint(Sketcher.Constraint("Coincident", 3, 2, 0, 1))
sketch12.addConstraint(Sketcher.Constraint("Vertical", 0))
sketch12.addConstraint(Sketcher.Constraint("Horizontal", 1))
sketch12.addConstraint(Sketcher.Constraint("Vertical", 2))
sketch12.addConstraint(Sketcher.Constraint("Horizontal", 3))
sketch12.addConstraint(Sketcher.Constraint("DistanceX", -1, 1, 0, 2, 60.0))
sketch12.addConstraint(Sketcher.Constraint("DistanceY", -1, 1, 0, 2, 68.5))
sketch12.addConstraint(Sketcher.Constraint("DistanceY", 0, 2, 0, 1, 61.545901))
sketch12.addConstraint(Sketcher.Constraint("DistanceX", 1, 2, 1, 1, 122.856865))
pocket9 = body.newObject("PartDesign::Pocket", "Pocket008")
pocket9.Profile = sketch12
pocket9.Type = "ThroughAll"
pocket9.Reversed = True
doc.recompute()

fillet4 = body.newObject("PartDesign::Fillet", "Fillet003")
fillet4.Base = (pocket9, edges_at(pocket9, [(-32, 68.5, 2), (32, 68.5, 2)]))
fillet4.setExpression("Radius", "Params.fillet4_radius")
doc.recompute()

fillet5 = body.newObject("PartDesign::Fillet", "Fillet004")
fillet5.Base = (fillet4, edges_at(fillet4, [(37, -25, 2), (-37, -25, 2)]))
fillet5.setExpression("Radius", "Params.fillet5_radius")

# Sketch on XY plane
sketch13 = body.newObject("Sketcher::SketchObject", "Sketch012")
sketch13.AttachmentSupport = (doc.getObject("XY_Plane"), [""])
sketch13.MapMode = "FlatFace"
sketch13.AttachmentOffset = App.Placement(App.Vector(0, 0, 4), App.Rotation())
sketch13.addGeometry(Part.Circle(App.Vector(0, 36, 0), App.Vector(0, 0, 1), 1.5), False)
sketch13.addConstraint(Sketcher.Constraint("PointOnObject", 0, 3, -2))
sketch13.addConstraint(Sketcher.Constraint("Diameter", 0, 3.0))
sketch13.addConstraint(Sketcher.Constraint("DistanceY", -1, 1, 0, 3, 36.0))
sketch13.setExpression("Constraints[1]", "Params.sketch13_diameter")
pocket10 = body.newObject("PartDesign::Pocket", "Pocket009")
pocket10.Profile = sketch13
pocket10.Type = "ThroughAll"

# Sketch on XY plane
sketch14 = body.newObject("Sketcher::SketchObject", "Sketch013")
sketch14.AttachmentSupport = (doc.getObject("XY_Plane"), [""])
sketch14.MapMode = "FlatFace"
sketch14.AttachmentOffset = App.Placement(App.Vector(0, 0, 4), App.Rotation())
sketch14.addGeometry(Part.LineSegment(App.Vector(-85.199014, 104.626695, 0), App.Vector(-85.199014, 43.5, 0)), False)
sketch14.addGeometry(Part.LineSegment(App.Vector(-85.199014, 43.5, 0), App.Vector(65.60691, 43.5, 0)), False)
sketch14.addGeometry(Part.LineSegment(App.Vector(65.60691, 43.5, 0), App.Vector(65.60691, 104.626695, 0)), False)
sketch14.addGeometry(Part.LineSegment(App.Vector(65.60691, 104.626695, 0), App.Vector(-85.199014, 104.626695, 0)), False)
sketch14.addConstraint(Sketcher.Constraint("Coincident", 0, 2, 1, 1))
sketch14.addConstraint(Sketcher.Constraint("Coincident", 1, 2, 2, 1))
sketch14.addConstraint(Sketcher.Constraint("Coincident", 2, 2, 3, 1))
sketch14.addConstraint(Sketcher.Constraint("Coincident", 3, 2, 0, 1))
sketch14.addConstraint(Sketcher.Constraint("Vertical", 0))
sketch14.addConstraint(Sketcher.Constraint("Horizontal", 1))
sketch14.addConstraint(Sketcher.Constraint("Vertical", 2))
sketch14.addConstraint(Sketcher.Constraint("Horizontal", 3))
sketch14.addConstraint(Sketcher.Constraint("DistanceY", -1, 1, 0, 2, 43.5))
sketch14.addConstraint(Sketcher.Constraint("DistanceX", 1, 1, 1, 2, 150.805925))
sketch14.addConstraint(Sketcher.Constraint("DistanceY", 0, 2, 0, 1, 61.126695))
sketch14.addConstraint(Sketcher.Constraint("DistanceX", -1, 1, 1, 2, 65.60691))
pocket11 = body.newObject("PartDesign::Pocket", "Pocket010")
pocket11.Profile = sketch14
pocket11.Type = "ThroughAll"
doc.recompute()

fillet6 = body.newObject("PartDesign::Fillet", "Fillet005")
fillet6.Base = (pocket11, edges_at(pocket11, [(-41.302, 43.5, 2), (41.302, 43.5, 2)]))
fillet6.setExpression("Radius", "Params.fillet6_radius")

doc.recompute()
